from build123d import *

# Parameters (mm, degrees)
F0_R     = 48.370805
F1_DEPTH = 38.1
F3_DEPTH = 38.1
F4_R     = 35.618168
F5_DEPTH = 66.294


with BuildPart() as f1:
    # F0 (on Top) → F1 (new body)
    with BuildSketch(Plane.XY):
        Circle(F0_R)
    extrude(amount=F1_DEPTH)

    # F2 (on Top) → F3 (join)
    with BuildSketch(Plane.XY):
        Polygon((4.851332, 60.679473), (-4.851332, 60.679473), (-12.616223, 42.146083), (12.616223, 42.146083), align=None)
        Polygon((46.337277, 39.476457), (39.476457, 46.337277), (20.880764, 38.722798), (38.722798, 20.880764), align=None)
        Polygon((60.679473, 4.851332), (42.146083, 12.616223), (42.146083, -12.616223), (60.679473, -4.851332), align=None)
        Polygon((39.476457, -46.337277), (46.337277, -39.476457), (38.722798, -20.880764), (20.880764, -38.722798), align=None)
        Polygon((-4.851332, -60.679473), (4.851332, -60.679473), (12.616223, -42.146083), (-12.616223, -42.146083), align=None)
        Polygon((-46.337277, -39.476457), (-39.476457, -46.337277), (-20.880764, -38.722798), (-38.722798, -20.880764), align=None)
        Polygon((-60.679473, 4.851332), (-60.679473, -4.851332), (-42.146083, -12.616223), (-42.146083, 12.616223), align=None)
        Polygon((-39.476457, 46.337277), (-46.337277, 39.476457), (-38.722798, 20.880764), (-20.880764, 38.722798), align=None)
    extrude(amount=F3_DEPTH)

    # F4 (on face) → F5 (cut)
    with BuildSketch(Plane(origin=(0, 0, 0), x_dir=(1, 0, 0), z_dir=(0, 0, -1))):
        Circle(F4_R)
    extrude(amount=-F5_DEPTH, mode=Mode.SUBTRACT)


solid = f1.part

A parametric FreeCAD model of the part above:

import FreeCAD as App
import Part
import Sketcher
Q = App.Units.Quantity

doc = App.newDocument("Part")
body = doc.addObject("PartDesign::Body", "Body")

sketch1 = doc.addObject("Sketcher::SketchObject", "Sketch")
body.addObject(sketch1)
sketch1.AttachmentSupport = (doc.XY_Plane, [""])
sketch1.MapMode = "FlatFace"
sketch1.addGeometry(Part.Circle(App.Vector(0, 0, 0), App.Vector(0, 0, 1), 48.370805), False)
sketch1.addConstraint([
    Sketcher.Constraint("Coincident", 0, 3, -1, 1),
    Sketcher.Constraint("Diameter", 0, Q("96.74161 mm")),
])
pad1 = doc.addObject("PartDesign::Pad", "Pad")
body.addObject(pad1)
pad1.Profile = sketch1
pad1.Length = Q("1.5 in")

sketch2 = doc.addObject("Sketcher::SketchObject", "Sketch001")
body.addObject(sketch2)
sketch2.AttachmentSupport = (doc.XY_Plane, [""])
sketch2.MapMode = "FlatFace"
sketch2.addGeometry([
    Part.LineSegment(App.Vector(4.851332, 60.679473, 0), App.Vector(-4.851332, 60.679473, 0)),
    Part.LineSegment(App.Vector(-4.851332, 60.679473, 0), App.Vector(-12.616223, 42.146083, 0)),
    Part.LineSegment(App.Vector(-12.616223, 42.146083, 0), App.Vector(12.616223, 42.146083, 0)),
    Part.LineSegment(App.Vector(12.616223, 42.146083, 0), App.Vector(4.851332, 60.679473, 0)),
    Part.LineSegment(App.Vector(46.337277, 39.476457, 0), App.Vector(39.476457, 46.337277, 0)),
    Part.LineSegment(App.Vector(39.476457, 46.337277, 0), App.Vector(20.880764, 38.722798, 0)),
    Part.LineSegment(App.Vector(20.880764, 38.722798, 0), App.Vector(38.722798, 20.880764, 0)),
    Part.LineSegment(App.Vector(38.722798, 20.880764, 0), App.Vector(46.337277, 39.476457, 0)),
    Part.LineSegment(App.Vector(60.679473, 4.851332, 0), App.Vector(42.146083, 12.616223, 0)),
    Part.LineSegment(App.Vector(42.146083, 12.616223, 0), App.Vector(42.146083, -12.616223, 0)),
    Part.LineSegment(App.Vector(42.146083, -12.616223, 0), App.Vector(60.679473, -4.851332, 0)),
    Part.LineSegment(App.Vector(60.679473, -4.851332, 0), App.Vector(60.679473, 4.851332, 0)),
    Part.LineSegment(App.Vector(39.476457, -46.337277, 0), App.Vector(46.337277, -39.476457, 0)),
    Part.LineSegment(App.Vector(46.337277, -39.476457, 0), App.Vector(38.722798, -20.880764, 0)),
    Part.LineSegment(App.Vector(38.722798, -20.880764, 0), App.Vector(20.880764, -38.722798, 0)),
    Part.LineSegment(App.Vector(20.880764, -38.722798, 0), App.Vector(39.476457, -46.337277, 0)),
    Part.LineSegment(App.Vector(-4.851332, -60.679473, 0), App.Vector(4.851332, -60.679473, 0)),
    Part.LineSegment(App.Vector(4.851332, -60.679473, 0), App.Vector(12.616223, -42.146083, 0)),
    Part.LineSegment(App.Vector(12.616223, -42.146083, 0), App.Vector(-12.616223, -42.146083, 0)),
    Part.LineSegment(App.Vector(-12.616223, -42.146083, 0), App.Vector(-4.851332, -60.679473, 0)),
    Part.LineSegment(App.Vector(-46.337277, -39.476457, 0), App.Vector(-39.476457, -46.337277, 0)),
    Part.LineSegment(App.Vector(-39.476457, -46.337277, 0), App.Vector(-20.880764, -38.722798, 0)),
    Part.LineSegment(App.Vector(-20.880764, -38.722798, 0), App.Vector(-38.722798, -20.880764, 0)),
    Part.LineSegment(App.Vector(-38.722798, -20.880764, 0), App.Vector(-46.337277, -39.476457, 0)),
    Part.LineSegment(App.Vector(-60.679473, 4.851332, 0), App.Vector(-60.679473, -4.851332, 0)),
    Part.LineSegment(App.Vector(-60.679473, -4.851332, 0), App.Vector(-42.146083, -12.616223, 0)),
    Part.LineSegment(App.Vector(-42.146083, -12.616223, 0), App.Vector(-42.146083, 12.616223, 0)),
    Part.LineSegment(App.Vector(-42.146083, 12.616223, 0), App.Vector(-60.679473, 4.851332, 0)),
    Part.LineSegment(App.Vector(-39.476457, 46.337277, 0), App.Vector(-46.337277, 39.476457, 0)),
    Part.LineSegment(App.Vector(-46.337277, 39.476457, 0), App.Vector(-38.722798, 20.880764, 0)),
    Part.LineSegment(App.Vector(-38.722798, 20.880764, 0), App.Vector(-20.880764, 38.722798, 0)),
    Part.LineSegment(App.Vector(-20.880764, 38.722798, 0), App.Vector(-39.476457, 46.337277, 0)),
], False)
sketch2.addConstraint([
    Sketcher.Constraint("Coincident", 0, 2, 1, 1),
    Sketcher.Constraint("Coincident", 1, 2, 2, 1),
    Sketcher.Constraint("Coincident", 2, 2, 3, 1),
    Sketcher.Constraint("Coincident", 3, 2, 0, 1),
    Sketcher.Constraint("Coincident", 4, 2, 5, 1),
    Sketcher.Constraint("Coincident", 5, 2, 6, 1),
    Sketcher.Constraint("Coincident", 6, 2, 7, 1),
    Sketcher.Constraint("Coincident", 7, 2, 4, 1),
    Sketcher.Constraint("Coincident", 8, 2, 9, 1),
    Sketcher.Constraint("Coincident", 9, 2, 10, 1),
    Sketcher.Constraint("Coincident", 10, 2, 11, 1),
    Sketcher.Constraint("Coincident", 11, 2, 8, 1),
    Sketcher.Constraint("Coincident", 12, 2, 13, 1),
    Sketcher.Constraint("Coincident", 13, 2, 14, 1),
    Sketcher.Constraint("Coincident", 14, 2, 15, 1),
    Sketcher.Constraint("Coincident", 15, 2, 12, 1),
    Sketcher.Constraint("Coincident", 16, 2, 17, 1),
    Sketcher.Constraint("Coincident", 17, 2, 18, 1),
    Sketcher.Constraint("Coincident", 18, 2, 19, 1),
    Sketcher.Constraint("Coincident", 19, 2, 16, 1),
    Sketcher.Constraint("Coincident", 20, 2, 21, 1),
    Sketcher.Constraint("Coincident", 21, 2, 22, 1),
    Sketcher.Constraint("Coincident", 22, 2, 23, 1),
    Sketcher.Constraint("Coincident", 23, 2, 20, 1),
    Sketcher.Constraint("Coincident", 24, 2, 25, 1),
    Sketcher.Constraint("Coincident", 25, 2, 26, 1),
    Sketcher.Constraint("Coincident", 26, 2, 27, 1),
    Sketcher.Constraint("Coincident", 27, 2, 24, 1),
    Sketcher.Constraint("Coincident", 28, 2, 29, 1),
    Sketcher.Constraint("Coincident", 29, 2, 30, 1),
    Sketcher.Constraint("Coincident", 30, 2, 31, 1),
    Sketcher.Constraint("Coincident", 31, 2, 28, 1),
    Sketcher.Constraint("Horizontal", 0),
    Sketcher.Constraint("Horizontal", 2),
    Sketcher.Constraint("Vertical", 9),
    Sketcher.Constraint("Vertical", 11),
    Sketcher.Constraint("Horizontal", 16),
    Sketcher.Constraint("Horizontal", 18),
    Sketcher.Constraint("Vertical", 24),
    Sketcher.Constraint("Vertical", 26),
    Sketcher.Constraint("Symmetric", 0, 2, 16, 2, -1, 1),
    Sketcher.Constraint("Symmetric", 1, 2, 17, 2, -1, 1),
    Sketcher.Constraint("Symmetric", 4, 2, 20, 2, -1, 1),
    Sketcher.Constraint("Symmetric", 5, 2, 21, 2, -1, 1),
    Sketcher.Constraint("Symmetric", 6, 2, 22, 2, -1, 1),
    Sketcher.Constraint("Symmetric", 7, 2, 23, 2, -1, 1),
    Sketcher.Constraint("Symmetric", 11, 2, 24, 2, -1, 1),
    Sketcher.Constraint("Symmetric", 8, 2, 25, 2, -1, 1),
    Sketcher.Constraint("Symmetric", 12, 2, 28, 2, -1, 1),
    Sketcher.Constraint("Symmetric", 13, 2, 29, 2, -1, 1),
    Sketcher.Constraint("Symmetric", 14, 2, 30, 2, -1, 1),
    Sketcher.Constraint("Symmetric", 15, 2, 31, 2, -1, 1),
    Sketcher.Constraint("Symmetric", 15, 2, 20, 2, -2),
    Sketcher.Constraint("Symmetric", 14, 2, 21, 2, -2),
    Sketcher.Constraint("Symmetric", 13, 2, 22, 2, -2),
    Sketcher.Constraint("Symmetric", 12, 2, 23, 2, -2),
    Sketcher.Constraint("Parallel", 4, 6),
    Sketcher.Constraint("Perpendicular", 1, 8),
    Sketcher.Constraint("Perpendicular", 3, 10),
    Sketcher.Constraint("Perpendicular", 6, 12),
    Sketcher.Constraint("Perpendicular", 5, 13),
    Sketcher.Constraint("Perpendicular", 10, 19),
    Sketcher.Constraint("Perpendicular", 19, 27),
    Sketcher.Constraint("Horizontal", 10, 2, 24, 2),
    Sketcher.Constraint("Horizontal", 9, 2, 25, 2),
    Sketcher.Constraint("Horizontal", 8, 2, 26, 2),
    Sketcher.Constraint("Vertical", 3, 2, 16, 2),
    Sketcher.Constraint("Vertical", 1, 2, 18, 2),
    Sketcher.Constraint("Equal", 18, 9),
    Sketcher.Constraint("Equal", 16, 11),
    Sketcher.Constraint("Equal", 3, 5),
    Sketcher.Constraint("DistanceY", 9, 2, 4, 2, Q("58.9535 mm")),
    Sketcher.Constraint("Distance", 1, Q("20.09428 mm")),
    Sketcher.Constraint("DistanceX", 0, 2, 0, 1, Q("9.702664 mm")),
    Sketcher.Constraint("DistanceX", 2, 1, 2, 2, Q("25.232446 mm")),
    Sketcher.Constraint("DistanceX", 0, 2, 4, 2, Q("44.327789 mm")),
    Sketcher.Constraint("DistanceX", 2, 2, 5, 2, Q("8.264541 mm")),
    Sketcher.Constraint("DistanceX", 6, 2, 4, 2, Q("0.753659 mm")),
    Sketcher.Constraint("DistanceY", 6, 2, 2, 2, Q("21.265319 mm")),
    Sketcher.Constraint("DistanceX", 5, 2, 8, 2, Q("21.265319 mm")),
])
pad2 = doc.addObject("PartDesign::Pad", "Pad001")
body.addObject(pad2)
pad2.Profile = sketch2
pad2.Length = Q("1.5 in")

sketch3 = doc.addObject("Sketcher::SketchObject", "Sketch002")
body.addObject(sketch3)
sketch3.AttachmentSupport = (doc.XY_Plane, [""])
sketch3.MapMode = "FlatFace"
sketch3.addGeometry(Part.Circle(App.Vector(0, 0, 0), App.Vector(0, 0, 1), 35.618168), False)
sketch3.addConstraint([
    Sketcher.Constraint("Coincident", 0, 3, -1, 1),
    Sketcher.Constraint("Diameter", 0, Q("71.236336 mm")),
])
pocket1 = doc.addObject("PartDesign::Pocket", "Pocket")
body.addObject(pocket1)
pocket1.Profile = sketch3
pocket1.Length = Q("2.61 in")
pocket1.Reversed = True

doc.recompute()
